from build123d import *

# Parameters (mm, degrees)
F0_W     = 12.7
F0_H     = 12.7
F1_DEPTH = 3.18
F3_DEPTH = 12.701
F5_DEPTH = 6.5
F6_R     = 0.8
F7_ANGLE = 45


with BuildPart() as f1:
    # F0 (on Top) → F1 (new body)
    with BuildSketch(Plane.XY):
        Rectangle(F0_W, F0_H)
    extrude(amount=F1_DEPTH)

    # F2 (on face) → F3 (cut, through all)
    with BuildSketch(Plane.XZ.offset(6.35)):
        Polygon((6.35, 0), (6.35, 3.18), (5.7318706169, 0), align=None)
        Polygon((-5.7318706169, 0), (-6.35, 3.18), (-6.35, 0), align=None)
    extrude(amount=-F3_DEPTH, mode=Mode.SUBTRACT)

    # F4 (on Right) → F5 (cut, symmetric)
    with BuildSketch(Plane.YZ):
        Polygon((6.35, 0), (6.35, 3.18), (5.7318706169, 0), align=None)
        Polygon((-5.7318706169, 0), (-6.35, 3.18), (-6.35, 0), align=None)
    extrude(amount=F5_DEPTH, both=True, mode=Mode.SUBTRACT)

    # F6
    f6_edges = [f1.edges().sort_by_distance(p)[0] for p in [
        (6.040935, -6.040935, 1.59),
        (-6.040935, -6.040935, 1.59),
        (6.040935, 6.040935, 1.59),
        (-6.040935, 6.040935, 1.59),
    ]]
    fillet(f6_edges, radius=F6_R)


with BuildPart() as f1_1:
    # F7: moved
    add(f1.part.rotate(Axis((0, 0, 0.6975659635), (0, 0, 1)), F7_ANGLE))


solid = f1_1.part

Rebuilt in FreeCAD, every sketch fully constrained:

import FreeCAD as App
import Part
import Sketcher
from FreeCAD import Vector
Q = App.Units.Quantity


def edges_at(feature, points):
    """Names of the edges that pass closest to the given points."""
    edges = feature.Shape.Edges
    near = lambda p: min(range(len(edges)), key=lambda i: edges[i].distToShape(Part.Vertex(*p))[0])
    return sorted({f"Edge{near(p) + 1}" for p in points})

doc = App.newDocument("Part")
body = doc.addObject("PartDesign::Body", "Body")

# Sketch on XY plane
sketch1 = body.newObject("Sketcher::SketchObject", "Sketch")
sketch1.AttachmentSupport = (doc.getObject("XY_Plane"), [""])
sketch1.MapMode = "FlatFace"
sketch1.addGeometry(Part.LineSegment(Vector(-6, 6, 0), Vector(-6, -6, 0)), False)
sketch1.addGeometry(Part.LineSegment(Vector(-6, -6, 0), Vector(6, -6, 0)), False)
sketch1.addGeometry(Part.LineSegment(Vector(6, -6, 0), Vector(6, 6, 0)), False)
sketch1.addGeometry(Part.LineSegment(Vector(6, 6, 0), Vector(-6, 6, 0)), False)
sketch1.addConstraint(Sketcher.Constraint("Coincident", 0, 2, 1, 1))
sketch1.addConstraint(Sketcher.Constraint("Coincident", 1, 2, 2, 1))
sketch1.addConstraint(Sketcher.Constraint("Coincident", 2, 2, 3, 1))
sketch1.addConstraint(Sketcher.Constraint("Coincident", 3, 2, 0, 1))
sketch1.addConstraint(Sketcher.Constraint("Vertical", 0))
sketch1.addConstraint(Sketcher.Constraint("Horizontal", 1))
sketch1.addConstraint(Sketcher.Constraint("Vertical", 2))
sketch1.addConstraint(Sketcher.Constraint("Horizontal", 3))
sketch1.addConstraint(Sketcher.Constraint("Symmetric", 0, 2, 2, 2, -1, 1))
sketch1.addConstraint(Sketcher.Constraint("Equal", 3, 0))
sketch1.addConstraint(Sketcher.Constraint("DistanceX", 1, 1, 1, 2, 12.7))
pad1 = body.newObject("PartDesign::Pad", "Pad")
pad1.Profile = sketch1
pad1.Length = 3.18

# Sketch on XZ plane
sketch2 = body.newObject("Sketcher::SketchObject", "Sketch001")
sketch2.AttachmentSupport = (doc.getObject("XZ_Plane"), [""])
sketch2.MapMode = "FlatFace"
sketch2.AttachmentOffset = App.Placement(Vector(0, 0, 6.35), App.Rotation())
sketch2.addGeometry(Part.LineSegment(Vector(6.3, 0, 0), Vector(6.3, 3.2, 0)), False)
sketch2.addGeometry(Part.LineSegment(Vector(6.3, 3.2, 0), Vector(5.7, 0, 0)), False)
sketch2.addGeometry(Part.LineSegment(Vector(5.7, 0, 0), Vector(6.3, 0, 0)), False)
sketch2.addGeometry(Part.LineSegment(Vector(-5.7, 0, 0), Vector(-6.3, 3.2, 0)), False)
sketch2.addGeometry(Part.LineSegment(Vector(-6.3, 3.2, 0), Vector(-6.3, 0, 0)), False)
sketch2.addGeometry(Part.LineSegment(Vector(-6.3, 0, 0), Vector(-5.7, 0, 0)), False)
sketch2.addConstraint(Sketcher.Constraint("Coincident", 0, 2, 1, 1))
sketch2.addConstraint(Sketcher.Constraint("Coincident", 1, 2, 2, 1))
sketch2.addConstraint(Sketcher.Constraint("Coincident", 2, 2, 0, 1))
sketch2.addConstraint(Sketcher.Constraint("Coincident", 3, 2, 4, 1))
sketch2.addConstraint(Sketcher.Constraint("Coincident", 4, 2, 5, 1))
sketch2.addConstraint(Sketcher.Constraint("Coincident", 5, 2, 3, 1))
sketch2.addConstraint(Sketcher.Constraint("Vertical", 0))
sketch2.addConstraint(Sketcher.Constraint("Horizontal", 2))
sketch2.addConstraint(Sketcher.Constraint("Vertical", 4))
sketch2.addConstraint(Sketcher.Constraint("Horizontal", 5))
sketch2.addConstraint(Sketcher.Constraint("Symmetric", 2, 2, 4, 2, -1, 1))
sketch2.addConstraint(Sketcher.Constraint("Symmetric", 1, 2, 5, 2, -2))
sketch2.addConstraint(Sketcher.Constraint("Horizontal", 0, 2, 3, 2))
sketch2.addConstraint(Sketcher.Constraint("Angle", 1, Q("-101 deg")))
sketch2.addConstraint(Sketcher.Constraint("DistanceY", 0, 1, 0, 2, 3.18))
sketch2.addConstraint(Sketcher.Constraint("DistanceX", 3, 2, 0, 2, 12.7))
pocket1 = body.newObject("PartDesign::Pocket", "Pocket")
pocket1.Profile = sketch2
pocket1.Type = "ThroughAll"

# Sketch on YZ plane
sketch3 = body.newObject("Sketcher::SketchObject", "Sketch002")
sketch3.AttachmentSupport = (doc.getObject("YZ_Plane"), [""])
sketch3.MapMode = "FlatFace"
sketch3.addGeometry(Part.LineSegment(Vector(6.3, 0, 0), Vector(6.3, 3.2, 0)), False)
sketch3.addGeometry(Part.LineSegment(Vector(6.3, 3.2, 0), Vector(5.7, 0, 0)), False)
sketch3.addGeometry(Part.LineSegment(Vector(5.7, 0, 0), Vector(6.3, 0, 0)), False)
sketch3.addGeometry(Part.LineSegment(Vector(-5.7, 0, 0), Vector(-6.3, 3.2, 0)), False)
sketch3.addGeometry(Part.LineSegment(Vector(-6.3, 3.2, 0), Vector(-6.3, 0, 0)), False)
sketch3.addGeometry(Part.LineSegment(Vector(-6.3, 0, 0), Vector(-5.7, 0, 0)), False)
sketch3.addConstraint(Sketcher.Constraint("Coincident", 0, 2, 1, 1))
sketch3.addConstraint(Sketcher.Constraint("Coincident", 1, 2, 2, 1))
sketch3.addConstraint(Sketcher.Constraint("Coincident", 2, 2, 0, 1))
sketch3.addConstraint(Sketcher.Constraint("Coincident", 3, 2, 4, 1))
sketch3.addConstraint(Sketcher.Constraint("Coincident", 4, 2, 5, 1))
sketch3.addConstraint(Sketcher.Constraint("Coincident", 5, 2, 3, 1))
sketch3.addConstraint(Sketcher.Constraint("Vertical", 0))
sketch3.addConstraint(Sketcher.Constraint("Horizontal", 2))
sketch3.addConstraint(Sketcher.Constraint("Vertical", 4))
sketch3.addConstraint(Sketcher.Constraint("Horizontal", 5))
sketch3.addConstraint(Sketcher.Constraint("Symmetric", 2, 2, 4, 2, -1, 1))
sketch3.addConstraint(Sketcher.Constraint("Symmetric", 1, 2, 5, 2, -2))
sketch3.addConstraint(Sketcher.Constraint("Horizontal", 0, 2, 3, 2))
sketch3.addConstraint(Sketcher.Constraint("Angle", 1, Q("-101 deg")))
sketch3.addConstraint(Sketcher.Constraint("DistanceY", 0, 1, 0, 2, 3.18))
sketch3.addConstraint(Sketcher.Constraint("DistanceX", 3, 2, 0, 2, 12.7))
pocket2 = body.newObject("PartDesign::Pocket", "Pocket001")
pocket2.Profile = sketch3
pocket2.Length = 13
pocket2.Midplane = True
doc.recompute()

fillet = body.newObject("PartDesign::Fillet", "Fillet")
fillet.Base = (pocket2, edges_at(pocket2, [
    (6.041, -6.041, 1.59),
    (-6.041, -6.041, 1.59),
    (6.041, 6.041, 1.59),
    (-6.041, 6.041, 1.59),
]))
fillet.Radius = 0.8
body2 = doc.addObject("PartDesign::Body", "Body001")
doc.recompute()

body.Placement = App.Placement(Vector(0, 0, 0), App.Rotation(Vector(0, 0, 1), 45))
boolean = body2.newObject("PartDesign::Boolean", "Boolean")
boolean.Type = "Fuse"
boolean.addObjects([body])

doc.recompute()
